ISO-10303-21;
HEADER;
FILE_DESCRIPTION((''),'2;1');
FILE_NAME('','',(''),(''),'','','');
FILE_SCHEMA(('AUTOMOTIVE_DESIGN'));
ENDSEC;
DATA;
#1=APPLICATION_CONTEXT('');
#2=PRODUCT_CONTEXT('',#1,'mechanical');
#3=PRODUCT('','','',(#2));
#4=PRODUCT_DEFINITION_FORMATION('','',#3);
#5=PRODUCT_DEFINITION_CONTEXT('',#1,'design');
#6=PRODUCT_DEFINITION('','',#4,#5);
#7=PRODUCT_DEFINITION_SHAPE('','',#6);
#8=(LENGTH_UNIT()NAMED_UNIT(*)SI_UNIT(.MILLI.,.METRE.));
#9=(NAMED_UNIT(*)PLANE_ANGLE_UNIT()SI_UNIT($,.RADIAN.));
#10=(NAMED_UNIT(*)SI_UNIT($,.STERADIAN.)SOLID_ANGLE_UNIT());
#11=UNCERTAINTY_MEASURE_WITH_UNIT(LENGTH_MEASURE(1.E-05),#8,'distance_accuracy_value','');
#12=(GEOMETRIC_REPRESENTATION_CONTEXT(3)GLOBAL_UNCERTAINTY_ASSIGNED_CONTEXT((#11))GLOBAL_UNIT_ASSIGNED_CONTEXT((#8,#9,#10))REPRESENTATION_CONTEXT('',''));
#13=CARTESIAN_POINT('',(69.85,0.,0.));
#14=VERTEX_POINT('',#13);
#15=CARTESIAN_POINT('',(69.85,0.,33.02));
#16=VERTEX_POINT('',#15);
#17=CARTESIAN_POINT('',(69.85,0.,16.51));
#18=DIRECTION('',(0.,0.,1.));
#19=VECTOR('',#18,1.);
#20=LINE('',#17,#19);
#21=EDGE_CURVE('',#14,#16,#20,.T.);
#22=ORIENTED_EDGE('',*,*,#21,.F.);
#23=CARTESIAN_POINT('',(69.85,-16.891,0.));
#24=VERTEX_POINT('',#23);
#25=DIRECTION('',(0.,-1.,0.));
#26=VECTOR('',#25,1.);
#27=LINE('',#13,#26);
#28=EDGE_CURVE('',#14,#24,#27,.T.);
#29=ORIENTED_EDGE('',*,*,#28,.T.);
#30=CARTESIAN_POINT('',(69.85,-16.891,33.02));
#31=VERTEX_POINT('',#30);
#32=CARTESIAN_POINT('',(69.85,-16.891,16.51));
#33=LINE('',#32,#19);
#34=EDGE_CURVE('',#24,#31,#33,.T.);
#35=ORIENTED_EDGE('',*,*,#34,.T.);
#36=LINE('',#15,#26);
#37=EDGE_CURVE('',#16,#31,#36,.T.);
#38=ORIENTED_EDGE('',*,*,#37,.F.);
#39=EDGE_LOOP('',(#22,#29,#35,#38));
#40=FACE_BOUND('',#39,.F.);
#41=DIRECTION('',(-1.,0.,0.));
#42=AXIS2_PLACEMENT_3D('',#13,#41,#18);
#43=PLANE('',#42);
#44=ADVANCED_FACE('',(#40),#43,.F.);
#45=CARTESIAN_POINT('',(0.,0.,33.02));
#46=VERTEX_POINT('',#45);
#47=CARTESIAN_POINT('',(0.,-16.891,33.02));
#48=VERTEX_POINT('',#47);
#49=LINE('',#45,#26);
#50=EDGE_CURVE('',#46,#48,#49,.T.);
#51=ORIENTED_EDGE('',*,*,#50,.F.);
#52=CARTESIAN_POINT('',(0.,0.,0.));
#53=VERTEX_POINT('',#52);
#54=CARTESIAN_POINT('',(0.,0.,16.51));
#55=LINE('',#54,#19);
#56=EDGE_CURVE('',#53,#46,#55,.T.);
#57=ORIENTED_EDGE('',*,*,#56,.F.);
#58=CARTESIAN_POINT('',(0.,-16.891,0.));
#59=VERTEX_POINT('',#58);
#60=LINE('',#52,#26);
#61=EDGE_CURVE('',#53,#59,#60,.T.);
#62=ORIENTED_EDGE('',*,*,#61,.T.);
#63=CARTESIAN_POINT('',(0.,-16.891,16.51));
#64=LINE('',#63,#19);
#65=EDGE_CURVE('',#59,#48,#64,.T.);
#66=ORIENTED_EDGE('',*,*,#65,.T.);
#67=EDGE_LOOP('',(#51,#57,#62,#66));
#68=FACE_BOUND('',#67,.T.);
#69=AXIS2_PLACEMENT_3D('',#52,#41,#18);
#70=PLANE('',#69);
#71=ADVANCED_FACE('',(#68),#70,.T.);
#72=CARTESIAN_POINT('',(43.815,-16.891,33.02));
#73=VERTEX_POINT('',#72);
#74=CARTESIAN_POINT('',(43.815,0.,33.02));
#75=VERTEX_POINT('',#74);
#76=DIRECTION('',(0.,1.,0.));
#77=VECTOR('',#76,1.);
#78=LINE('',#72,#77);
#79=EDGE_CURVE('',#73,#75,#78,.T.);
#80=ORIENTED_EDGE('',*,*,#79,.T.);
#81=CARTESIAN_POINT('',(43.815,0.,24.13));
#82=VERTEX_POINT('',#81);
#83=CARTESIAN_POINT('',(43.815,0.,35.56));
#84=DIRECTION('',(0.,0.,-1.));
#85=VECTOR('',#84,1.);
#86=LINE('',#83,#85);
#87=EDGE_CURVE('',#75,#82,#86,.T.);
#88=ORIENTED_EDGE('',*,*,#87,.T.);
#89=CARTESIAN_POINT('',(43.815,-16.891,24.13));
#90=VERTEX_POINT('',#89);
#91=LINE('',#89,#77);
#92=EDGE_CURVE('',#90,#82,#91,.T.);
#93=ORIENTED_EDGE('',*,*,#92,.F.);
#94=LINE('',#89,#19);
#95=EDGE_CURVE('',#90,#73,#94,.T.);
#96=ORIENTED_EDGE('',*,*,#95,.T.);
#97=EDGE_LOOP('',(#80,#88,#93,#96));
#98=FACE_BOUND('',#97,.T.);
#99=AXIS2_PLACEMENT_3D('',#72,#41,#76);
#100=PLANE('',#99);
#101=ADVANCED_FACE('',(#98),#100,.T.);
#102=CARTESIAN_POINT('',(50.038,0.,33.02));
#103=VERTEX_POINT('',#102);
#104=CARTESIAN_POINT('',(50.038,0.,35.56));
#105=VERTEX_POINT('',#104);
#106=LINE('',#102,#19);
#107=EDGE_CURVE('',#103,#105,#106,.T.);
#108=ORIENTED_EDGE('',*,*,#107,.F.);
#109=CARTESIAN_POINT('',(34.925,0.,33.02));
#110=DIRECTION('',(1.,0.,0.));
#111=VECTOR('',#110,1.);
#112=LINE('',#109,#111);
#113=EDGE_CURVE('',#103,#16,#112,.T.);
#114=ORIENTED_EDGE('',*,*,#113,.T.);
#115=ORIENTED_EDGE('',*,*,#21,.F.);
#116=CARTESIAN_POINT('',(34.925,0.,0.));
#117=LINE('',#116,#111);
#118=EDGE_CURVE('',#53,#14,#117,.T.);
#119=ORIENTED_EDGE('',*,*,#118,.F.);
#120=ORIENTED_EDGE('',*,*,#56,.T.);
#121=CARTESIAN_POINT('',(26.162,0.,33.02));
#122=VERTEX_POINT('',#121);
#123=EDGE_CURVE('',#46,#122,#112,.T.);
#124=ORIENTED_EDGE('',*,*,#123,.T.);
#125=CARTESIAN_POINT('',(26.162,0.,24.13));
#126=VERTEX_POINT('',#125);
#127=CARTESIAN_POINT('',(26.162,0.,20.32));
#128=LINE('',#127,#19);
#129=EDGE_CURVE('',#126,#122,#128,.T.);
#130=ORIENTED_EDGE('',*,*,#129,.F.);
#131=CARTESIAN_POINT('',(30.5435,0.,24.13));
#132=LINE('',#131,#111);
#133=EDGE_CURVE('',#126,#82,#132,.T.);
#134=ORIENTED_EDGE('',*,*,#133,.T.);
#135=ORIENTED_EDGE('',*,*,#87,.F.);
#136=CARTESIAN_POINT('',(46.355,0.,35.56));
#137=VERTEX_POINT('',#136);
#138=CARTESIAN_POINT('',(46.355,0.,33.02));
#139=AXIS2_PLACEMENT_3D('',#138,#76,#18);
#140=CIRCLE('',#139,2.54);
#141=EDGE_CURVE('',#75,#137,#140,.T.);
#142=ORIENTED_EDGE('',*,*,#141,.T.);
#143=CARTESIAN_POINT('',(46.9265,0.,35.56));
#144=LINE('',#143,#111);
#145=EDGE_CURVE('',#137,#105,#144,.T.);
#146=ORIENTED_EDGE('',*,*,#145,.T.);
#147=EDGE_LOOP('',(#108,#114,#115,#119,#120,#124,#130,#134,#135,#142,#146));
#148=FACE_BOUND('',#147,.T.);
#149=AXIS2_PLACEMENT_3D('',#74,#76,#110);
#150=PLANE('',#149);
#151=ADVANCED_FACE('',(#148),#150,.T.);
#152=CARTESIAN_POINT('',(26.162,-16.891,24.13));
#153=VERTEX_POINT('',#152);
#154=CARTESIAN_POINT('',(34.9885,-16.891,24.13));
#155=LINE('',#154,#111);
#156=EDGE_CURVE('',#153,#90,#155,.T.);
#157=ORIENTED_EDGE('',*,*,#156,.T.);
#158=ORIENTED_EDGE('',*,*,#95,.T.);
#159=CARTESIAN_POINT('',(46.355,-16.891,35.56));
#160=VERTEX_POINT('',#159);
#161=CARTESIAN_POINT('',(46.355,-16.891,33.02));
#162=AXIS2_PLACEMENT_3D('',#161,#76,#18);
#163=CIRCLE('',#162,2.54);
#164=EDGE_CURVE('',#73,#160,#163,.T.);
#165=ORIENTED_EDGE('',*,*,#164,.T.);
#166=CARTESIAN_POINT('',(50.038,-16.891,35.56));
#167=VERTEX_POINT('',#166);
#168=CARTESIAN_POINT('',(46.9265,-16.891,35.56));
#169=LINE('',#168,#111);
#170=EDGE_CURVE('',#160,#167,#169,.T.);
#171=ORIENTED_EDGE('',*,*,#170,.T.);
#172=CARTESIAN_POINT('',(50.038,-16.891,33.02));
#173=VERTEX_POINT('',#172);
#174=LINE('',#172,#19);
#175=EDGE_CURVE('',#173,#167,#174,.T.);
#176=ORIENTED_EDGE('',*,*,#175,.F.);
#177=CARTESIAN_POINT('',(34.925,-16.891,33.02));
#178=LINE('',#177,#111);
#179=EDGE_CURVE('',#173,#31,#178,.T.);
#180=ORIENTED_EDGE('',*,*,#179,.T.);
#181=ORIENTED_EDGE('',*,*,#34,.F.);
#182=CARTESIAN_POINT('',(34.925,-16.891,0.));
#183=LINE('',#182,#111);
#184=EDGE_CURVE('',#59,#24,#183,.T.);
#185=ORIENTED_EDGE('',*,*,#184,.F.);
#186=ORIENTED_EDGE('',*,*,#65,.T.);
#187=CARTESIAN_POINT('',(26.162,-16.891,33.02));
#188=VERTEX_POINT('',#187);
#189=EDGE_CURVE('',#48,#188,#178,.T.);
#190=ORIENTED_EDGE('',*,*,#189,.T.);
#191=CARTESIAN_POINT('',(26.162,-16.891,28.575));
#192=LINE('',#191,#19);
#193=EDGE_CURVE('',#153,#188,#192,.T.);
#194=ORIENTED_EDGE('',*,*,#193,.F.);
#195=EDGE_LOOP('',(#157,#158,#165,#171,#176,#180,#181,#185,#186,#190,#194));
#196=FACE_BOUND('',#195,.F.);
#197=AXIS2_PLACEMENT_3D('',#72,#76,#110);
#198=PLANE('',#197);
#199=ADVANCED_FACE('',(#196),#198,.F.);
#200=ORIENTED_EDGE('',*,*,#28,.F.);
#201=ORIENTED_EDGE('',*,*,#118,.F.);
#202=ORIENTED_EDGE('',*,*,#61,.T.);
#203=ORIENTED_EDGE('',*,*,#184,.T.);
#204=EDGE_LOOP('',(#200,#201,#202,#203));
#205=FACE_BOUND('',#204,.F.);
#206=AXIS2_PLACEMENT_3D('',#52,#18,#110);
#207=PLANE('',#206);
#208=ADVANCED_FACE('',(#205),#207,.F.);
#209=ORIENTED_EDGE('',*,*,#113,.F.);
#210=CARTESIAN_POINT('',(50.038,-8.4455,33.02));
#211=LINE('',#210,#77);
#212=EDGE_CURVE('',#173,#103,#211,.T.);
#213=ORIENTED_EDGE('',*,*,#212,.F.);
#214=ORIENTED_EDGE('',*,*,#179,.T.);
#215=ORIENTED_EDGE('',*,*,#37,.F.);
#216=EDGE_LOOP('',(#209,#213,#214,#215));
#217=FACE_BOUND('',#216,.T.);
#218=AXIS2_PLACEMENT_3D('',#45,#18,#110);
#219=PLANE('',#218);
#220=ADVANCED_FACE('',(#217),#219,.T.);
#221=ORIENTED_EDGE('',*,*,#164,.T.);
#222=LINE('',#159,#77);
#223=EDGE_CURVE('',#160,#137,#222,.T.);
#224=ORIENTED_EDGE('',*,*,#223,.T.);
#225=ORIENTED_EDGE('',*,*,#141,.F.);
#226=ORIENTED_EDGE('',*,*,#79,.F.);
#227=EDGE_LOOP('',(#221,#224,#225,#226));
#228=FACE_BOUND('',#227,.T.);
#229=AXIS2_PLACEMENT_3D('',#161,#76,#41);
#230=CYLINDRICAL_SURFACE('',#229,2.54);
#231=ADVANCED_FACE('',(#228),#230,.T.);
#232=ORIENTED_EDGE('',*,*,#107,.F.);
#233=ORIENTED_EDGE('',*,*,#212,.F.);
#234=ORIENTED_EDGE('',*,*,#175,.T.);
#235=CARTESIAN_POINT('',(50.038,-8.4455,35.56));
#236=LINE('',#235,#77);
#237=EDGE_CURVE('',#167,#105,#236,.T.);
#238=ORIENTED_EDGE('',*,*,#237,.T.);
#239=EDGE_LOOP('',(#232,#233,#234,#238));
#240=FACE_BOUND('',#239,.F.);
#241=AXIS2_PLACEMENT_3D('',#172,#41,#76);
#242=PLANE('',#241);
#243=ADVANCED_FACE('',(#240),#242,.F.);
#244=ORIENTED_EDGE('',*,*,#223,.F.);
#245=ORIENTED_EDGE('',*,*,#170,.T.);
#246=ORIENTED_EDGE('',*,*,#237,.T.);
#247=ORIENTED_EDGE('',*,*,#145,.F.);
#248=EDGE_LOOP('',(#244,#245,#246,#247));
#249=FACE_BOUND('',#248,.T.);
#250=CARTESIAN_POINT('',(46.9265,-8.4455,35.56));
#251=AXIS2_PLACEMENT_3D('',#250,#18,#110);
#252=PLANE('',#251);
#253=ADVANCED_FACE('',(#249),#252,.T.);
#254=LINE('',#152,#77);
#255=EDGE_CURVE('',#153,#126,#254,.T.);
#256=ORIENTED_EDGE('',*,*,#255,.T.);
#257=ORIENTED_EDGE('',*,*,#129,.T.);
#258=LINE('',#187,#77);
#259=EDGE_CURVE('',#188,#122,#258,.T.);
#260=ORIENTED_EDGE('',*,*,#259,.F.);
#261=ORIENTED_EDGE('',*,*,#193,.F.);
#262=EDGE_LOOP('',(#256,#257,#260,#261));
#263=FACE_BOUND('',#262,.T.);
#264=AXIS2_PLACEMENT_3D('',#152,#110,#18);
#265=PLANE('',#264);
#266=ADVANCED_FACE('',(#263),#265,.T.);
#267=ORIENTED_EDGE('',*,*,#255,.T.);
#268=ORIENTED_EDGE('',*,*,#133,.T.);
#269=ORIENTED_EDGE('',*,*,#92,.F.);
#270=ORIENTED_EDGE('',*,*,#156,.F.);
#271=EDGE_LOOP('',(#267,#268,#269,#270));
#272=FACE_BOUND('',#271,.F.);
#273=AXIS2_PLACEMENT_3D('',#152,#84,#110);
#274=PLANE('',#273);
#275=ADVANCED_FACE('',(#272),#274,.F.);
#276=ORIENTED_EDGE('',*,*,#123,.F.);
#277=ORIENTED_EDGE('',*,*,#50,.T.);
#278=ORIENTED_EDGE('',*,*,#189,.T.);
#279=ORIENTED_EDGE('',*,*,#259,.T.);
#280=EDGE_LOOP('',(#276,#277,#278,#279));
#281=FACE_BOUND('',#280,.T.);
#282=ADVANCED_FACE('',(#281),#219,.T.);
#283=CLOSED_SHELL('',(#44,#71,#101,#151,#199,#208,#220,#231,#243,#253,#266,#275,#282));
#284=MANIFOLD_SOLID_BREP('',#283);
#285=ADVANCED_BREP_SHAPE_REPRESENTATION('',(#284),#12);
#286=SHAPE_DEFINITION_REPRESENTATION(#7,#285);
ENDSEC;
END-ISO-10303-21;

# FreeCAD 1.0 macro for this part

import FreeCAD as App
import Part
import Sketcher
from FreeCAD import Vector
Q = App.Units.Quantity


def edges_at(feature, points):
    """Names of the edges that pass closest to the given points."""
    edges = feature.Shape.Edges
    near = lambda p: min(range(len(edges)), key=lambda i: edges[i].distToShape(Part.Vertex(*p))[0])
    return sorted({f"Edge{near(p) + 1}" for p in points})


def add_polygon(sketch, points):
    """Adds a closed chain of lines whose ends are joined by coincident constraints."""
    first, n = sketch.GeometryCount, len(points)
    for a, b in zip(points, points[1:] + points[:1]):
        sketch.addGeometry(Part.LineSegment(App.Vector(*a, 0), App.Vector(*b, 0)), False)
    for i in range(n):
        sketch.addConstraint(Sketcher.Constraint("Coincident", first + i, 2, first + (i + 1) % n, 1))

doc = App.newDocument("Part")
body = doc.addObject("PartDesign::Body", "Body")

# Sketch on XZ plane
sketch1 = body.newObject("Sketcher::SketchObject", "Sketch")
sketch1.AttachmentSupport = (doc.getObject("XZ_Plane"), [""])
sketch1.MapMode = "FlatFace"
add_polygon(sketch1, [(0, 33), (0, 0), (70, 0), (70, 33)])  # lines 0-3
sketch1.addConstraint([
    Sketcher.Constraint("Vertical", 0),
    Sketcher.Constraint("Horizontal", 1),
    Sketcher.Constraint("Vertical", 2),
    Sketcher.Constraint("Horizontal", 3),
    Sketcher.Constraint("Coincident", 0, 2, -1, 1),
    Sketcher.Constraint("DistanceY", 0, 2, 0, 1, Q("1.3 in")),
    Sketcher.Constraint("DistanceX", 1, 1, 1, 2, Q("2.75 in")),
])
pad1 = body.newObject("PartDesign::Pad", "Pad")
pad1.Profile = sketch1
pad1.Length = Q("0.665 in")

# Sketch on XZ plane
sketch2 = body.newObject("Sketcher::SketchObject", "Sketch001")
sketch2.AttachmentSupport = (doc.getObject("XZ_Plane"), [""])
sketch2.MapMode = "FlatFace"
sketch2.AttachmentOffset = App.Placement(Vector(0, 0, 0.665 * 25.4), App.Rotation())
add_polygon(sketch2, [(26, 33), (26, 24), (44, 24), (44, 33)])  # lines 0-3
sketch2.addConstraint([
    Sketcher.Constraint("Vertical", 0),
    Sketcher.Constraint("Horizontal", 1),
    Sketcher.Constraint("Vertical", 2),
    Sketcher.Constraint("Horizontal", 3),
    Sketcher.Constraint("DistanceY", 0, 2, 0, 1, Q("0.35 in")),
    Sketcher.Constraint("DistanceY", -1, 1, 2, 2, Q("1.3 in")),
    Sketcher.Constraint("DistanceX", 1, 1, 1, 2, Q("0.695 in")),
    Sketcher.Constraint("DistanceX", -1, 1, 0, 2, Q("1.03 in")),
])
pocket1 = body.newObject("PartDesign::Pocket", "Pocket")
pocket1.Profile = sketch2
pocket1.Length = Q("1 in")

# Sketch on XY plane
sketch3 = body.newObject("Sketcher::SketchObject", "Sketch002")
sketch3.AttachmentSupport = (doc.getObject("XY_Plane"), [""])
sketch3.MapMode = "FlatFace"
sketch3.AttachmentOffset = App.Placement(Vector(0, 0, 1.3 * 25.4), App.Rotation())
add_polygon(sketch3, [(44, 0), (44, -17), (50, -17), (50, 0)])  # lines 0-3
sketch3.addConstraint([
    Sketcher.Constraint("Vertical", 0),
    Sketcher.Constraint("Horizontal", 1),
    Sketcher.Constraint("Vertical", 2),
    Sketcher.Constraint("Horizontal", 3),
    Sketcher.Constraint("PointOnObject", 2, 2, -1),
    Sketcher.Constraint("DistanceX", 1, 1, 1, 2, Q("0.245 in")),
    Sketcher.Constraint("DistanceY", 0, 2, 0, 1, Q("0.665 in")),
    Sketcher.Constraint("DistanceX", -1, 1, 1, 2, Q("1.97 in")),
])
pad2 = body.newObject("PartDesign::Pad", "Pad001")
pad2.Profile = sketch3
pad2.Length = Q("0.1 in")
doc.recompute()

fillet = body.newObject("PartDesign::Fillet", "Fillet")
fillet.Base = (pad2, edges_at(pad2, [(43.815, -8.445, 35.56)]))
fillet.Radius = Q("0.1 in")

doc.recompute()
